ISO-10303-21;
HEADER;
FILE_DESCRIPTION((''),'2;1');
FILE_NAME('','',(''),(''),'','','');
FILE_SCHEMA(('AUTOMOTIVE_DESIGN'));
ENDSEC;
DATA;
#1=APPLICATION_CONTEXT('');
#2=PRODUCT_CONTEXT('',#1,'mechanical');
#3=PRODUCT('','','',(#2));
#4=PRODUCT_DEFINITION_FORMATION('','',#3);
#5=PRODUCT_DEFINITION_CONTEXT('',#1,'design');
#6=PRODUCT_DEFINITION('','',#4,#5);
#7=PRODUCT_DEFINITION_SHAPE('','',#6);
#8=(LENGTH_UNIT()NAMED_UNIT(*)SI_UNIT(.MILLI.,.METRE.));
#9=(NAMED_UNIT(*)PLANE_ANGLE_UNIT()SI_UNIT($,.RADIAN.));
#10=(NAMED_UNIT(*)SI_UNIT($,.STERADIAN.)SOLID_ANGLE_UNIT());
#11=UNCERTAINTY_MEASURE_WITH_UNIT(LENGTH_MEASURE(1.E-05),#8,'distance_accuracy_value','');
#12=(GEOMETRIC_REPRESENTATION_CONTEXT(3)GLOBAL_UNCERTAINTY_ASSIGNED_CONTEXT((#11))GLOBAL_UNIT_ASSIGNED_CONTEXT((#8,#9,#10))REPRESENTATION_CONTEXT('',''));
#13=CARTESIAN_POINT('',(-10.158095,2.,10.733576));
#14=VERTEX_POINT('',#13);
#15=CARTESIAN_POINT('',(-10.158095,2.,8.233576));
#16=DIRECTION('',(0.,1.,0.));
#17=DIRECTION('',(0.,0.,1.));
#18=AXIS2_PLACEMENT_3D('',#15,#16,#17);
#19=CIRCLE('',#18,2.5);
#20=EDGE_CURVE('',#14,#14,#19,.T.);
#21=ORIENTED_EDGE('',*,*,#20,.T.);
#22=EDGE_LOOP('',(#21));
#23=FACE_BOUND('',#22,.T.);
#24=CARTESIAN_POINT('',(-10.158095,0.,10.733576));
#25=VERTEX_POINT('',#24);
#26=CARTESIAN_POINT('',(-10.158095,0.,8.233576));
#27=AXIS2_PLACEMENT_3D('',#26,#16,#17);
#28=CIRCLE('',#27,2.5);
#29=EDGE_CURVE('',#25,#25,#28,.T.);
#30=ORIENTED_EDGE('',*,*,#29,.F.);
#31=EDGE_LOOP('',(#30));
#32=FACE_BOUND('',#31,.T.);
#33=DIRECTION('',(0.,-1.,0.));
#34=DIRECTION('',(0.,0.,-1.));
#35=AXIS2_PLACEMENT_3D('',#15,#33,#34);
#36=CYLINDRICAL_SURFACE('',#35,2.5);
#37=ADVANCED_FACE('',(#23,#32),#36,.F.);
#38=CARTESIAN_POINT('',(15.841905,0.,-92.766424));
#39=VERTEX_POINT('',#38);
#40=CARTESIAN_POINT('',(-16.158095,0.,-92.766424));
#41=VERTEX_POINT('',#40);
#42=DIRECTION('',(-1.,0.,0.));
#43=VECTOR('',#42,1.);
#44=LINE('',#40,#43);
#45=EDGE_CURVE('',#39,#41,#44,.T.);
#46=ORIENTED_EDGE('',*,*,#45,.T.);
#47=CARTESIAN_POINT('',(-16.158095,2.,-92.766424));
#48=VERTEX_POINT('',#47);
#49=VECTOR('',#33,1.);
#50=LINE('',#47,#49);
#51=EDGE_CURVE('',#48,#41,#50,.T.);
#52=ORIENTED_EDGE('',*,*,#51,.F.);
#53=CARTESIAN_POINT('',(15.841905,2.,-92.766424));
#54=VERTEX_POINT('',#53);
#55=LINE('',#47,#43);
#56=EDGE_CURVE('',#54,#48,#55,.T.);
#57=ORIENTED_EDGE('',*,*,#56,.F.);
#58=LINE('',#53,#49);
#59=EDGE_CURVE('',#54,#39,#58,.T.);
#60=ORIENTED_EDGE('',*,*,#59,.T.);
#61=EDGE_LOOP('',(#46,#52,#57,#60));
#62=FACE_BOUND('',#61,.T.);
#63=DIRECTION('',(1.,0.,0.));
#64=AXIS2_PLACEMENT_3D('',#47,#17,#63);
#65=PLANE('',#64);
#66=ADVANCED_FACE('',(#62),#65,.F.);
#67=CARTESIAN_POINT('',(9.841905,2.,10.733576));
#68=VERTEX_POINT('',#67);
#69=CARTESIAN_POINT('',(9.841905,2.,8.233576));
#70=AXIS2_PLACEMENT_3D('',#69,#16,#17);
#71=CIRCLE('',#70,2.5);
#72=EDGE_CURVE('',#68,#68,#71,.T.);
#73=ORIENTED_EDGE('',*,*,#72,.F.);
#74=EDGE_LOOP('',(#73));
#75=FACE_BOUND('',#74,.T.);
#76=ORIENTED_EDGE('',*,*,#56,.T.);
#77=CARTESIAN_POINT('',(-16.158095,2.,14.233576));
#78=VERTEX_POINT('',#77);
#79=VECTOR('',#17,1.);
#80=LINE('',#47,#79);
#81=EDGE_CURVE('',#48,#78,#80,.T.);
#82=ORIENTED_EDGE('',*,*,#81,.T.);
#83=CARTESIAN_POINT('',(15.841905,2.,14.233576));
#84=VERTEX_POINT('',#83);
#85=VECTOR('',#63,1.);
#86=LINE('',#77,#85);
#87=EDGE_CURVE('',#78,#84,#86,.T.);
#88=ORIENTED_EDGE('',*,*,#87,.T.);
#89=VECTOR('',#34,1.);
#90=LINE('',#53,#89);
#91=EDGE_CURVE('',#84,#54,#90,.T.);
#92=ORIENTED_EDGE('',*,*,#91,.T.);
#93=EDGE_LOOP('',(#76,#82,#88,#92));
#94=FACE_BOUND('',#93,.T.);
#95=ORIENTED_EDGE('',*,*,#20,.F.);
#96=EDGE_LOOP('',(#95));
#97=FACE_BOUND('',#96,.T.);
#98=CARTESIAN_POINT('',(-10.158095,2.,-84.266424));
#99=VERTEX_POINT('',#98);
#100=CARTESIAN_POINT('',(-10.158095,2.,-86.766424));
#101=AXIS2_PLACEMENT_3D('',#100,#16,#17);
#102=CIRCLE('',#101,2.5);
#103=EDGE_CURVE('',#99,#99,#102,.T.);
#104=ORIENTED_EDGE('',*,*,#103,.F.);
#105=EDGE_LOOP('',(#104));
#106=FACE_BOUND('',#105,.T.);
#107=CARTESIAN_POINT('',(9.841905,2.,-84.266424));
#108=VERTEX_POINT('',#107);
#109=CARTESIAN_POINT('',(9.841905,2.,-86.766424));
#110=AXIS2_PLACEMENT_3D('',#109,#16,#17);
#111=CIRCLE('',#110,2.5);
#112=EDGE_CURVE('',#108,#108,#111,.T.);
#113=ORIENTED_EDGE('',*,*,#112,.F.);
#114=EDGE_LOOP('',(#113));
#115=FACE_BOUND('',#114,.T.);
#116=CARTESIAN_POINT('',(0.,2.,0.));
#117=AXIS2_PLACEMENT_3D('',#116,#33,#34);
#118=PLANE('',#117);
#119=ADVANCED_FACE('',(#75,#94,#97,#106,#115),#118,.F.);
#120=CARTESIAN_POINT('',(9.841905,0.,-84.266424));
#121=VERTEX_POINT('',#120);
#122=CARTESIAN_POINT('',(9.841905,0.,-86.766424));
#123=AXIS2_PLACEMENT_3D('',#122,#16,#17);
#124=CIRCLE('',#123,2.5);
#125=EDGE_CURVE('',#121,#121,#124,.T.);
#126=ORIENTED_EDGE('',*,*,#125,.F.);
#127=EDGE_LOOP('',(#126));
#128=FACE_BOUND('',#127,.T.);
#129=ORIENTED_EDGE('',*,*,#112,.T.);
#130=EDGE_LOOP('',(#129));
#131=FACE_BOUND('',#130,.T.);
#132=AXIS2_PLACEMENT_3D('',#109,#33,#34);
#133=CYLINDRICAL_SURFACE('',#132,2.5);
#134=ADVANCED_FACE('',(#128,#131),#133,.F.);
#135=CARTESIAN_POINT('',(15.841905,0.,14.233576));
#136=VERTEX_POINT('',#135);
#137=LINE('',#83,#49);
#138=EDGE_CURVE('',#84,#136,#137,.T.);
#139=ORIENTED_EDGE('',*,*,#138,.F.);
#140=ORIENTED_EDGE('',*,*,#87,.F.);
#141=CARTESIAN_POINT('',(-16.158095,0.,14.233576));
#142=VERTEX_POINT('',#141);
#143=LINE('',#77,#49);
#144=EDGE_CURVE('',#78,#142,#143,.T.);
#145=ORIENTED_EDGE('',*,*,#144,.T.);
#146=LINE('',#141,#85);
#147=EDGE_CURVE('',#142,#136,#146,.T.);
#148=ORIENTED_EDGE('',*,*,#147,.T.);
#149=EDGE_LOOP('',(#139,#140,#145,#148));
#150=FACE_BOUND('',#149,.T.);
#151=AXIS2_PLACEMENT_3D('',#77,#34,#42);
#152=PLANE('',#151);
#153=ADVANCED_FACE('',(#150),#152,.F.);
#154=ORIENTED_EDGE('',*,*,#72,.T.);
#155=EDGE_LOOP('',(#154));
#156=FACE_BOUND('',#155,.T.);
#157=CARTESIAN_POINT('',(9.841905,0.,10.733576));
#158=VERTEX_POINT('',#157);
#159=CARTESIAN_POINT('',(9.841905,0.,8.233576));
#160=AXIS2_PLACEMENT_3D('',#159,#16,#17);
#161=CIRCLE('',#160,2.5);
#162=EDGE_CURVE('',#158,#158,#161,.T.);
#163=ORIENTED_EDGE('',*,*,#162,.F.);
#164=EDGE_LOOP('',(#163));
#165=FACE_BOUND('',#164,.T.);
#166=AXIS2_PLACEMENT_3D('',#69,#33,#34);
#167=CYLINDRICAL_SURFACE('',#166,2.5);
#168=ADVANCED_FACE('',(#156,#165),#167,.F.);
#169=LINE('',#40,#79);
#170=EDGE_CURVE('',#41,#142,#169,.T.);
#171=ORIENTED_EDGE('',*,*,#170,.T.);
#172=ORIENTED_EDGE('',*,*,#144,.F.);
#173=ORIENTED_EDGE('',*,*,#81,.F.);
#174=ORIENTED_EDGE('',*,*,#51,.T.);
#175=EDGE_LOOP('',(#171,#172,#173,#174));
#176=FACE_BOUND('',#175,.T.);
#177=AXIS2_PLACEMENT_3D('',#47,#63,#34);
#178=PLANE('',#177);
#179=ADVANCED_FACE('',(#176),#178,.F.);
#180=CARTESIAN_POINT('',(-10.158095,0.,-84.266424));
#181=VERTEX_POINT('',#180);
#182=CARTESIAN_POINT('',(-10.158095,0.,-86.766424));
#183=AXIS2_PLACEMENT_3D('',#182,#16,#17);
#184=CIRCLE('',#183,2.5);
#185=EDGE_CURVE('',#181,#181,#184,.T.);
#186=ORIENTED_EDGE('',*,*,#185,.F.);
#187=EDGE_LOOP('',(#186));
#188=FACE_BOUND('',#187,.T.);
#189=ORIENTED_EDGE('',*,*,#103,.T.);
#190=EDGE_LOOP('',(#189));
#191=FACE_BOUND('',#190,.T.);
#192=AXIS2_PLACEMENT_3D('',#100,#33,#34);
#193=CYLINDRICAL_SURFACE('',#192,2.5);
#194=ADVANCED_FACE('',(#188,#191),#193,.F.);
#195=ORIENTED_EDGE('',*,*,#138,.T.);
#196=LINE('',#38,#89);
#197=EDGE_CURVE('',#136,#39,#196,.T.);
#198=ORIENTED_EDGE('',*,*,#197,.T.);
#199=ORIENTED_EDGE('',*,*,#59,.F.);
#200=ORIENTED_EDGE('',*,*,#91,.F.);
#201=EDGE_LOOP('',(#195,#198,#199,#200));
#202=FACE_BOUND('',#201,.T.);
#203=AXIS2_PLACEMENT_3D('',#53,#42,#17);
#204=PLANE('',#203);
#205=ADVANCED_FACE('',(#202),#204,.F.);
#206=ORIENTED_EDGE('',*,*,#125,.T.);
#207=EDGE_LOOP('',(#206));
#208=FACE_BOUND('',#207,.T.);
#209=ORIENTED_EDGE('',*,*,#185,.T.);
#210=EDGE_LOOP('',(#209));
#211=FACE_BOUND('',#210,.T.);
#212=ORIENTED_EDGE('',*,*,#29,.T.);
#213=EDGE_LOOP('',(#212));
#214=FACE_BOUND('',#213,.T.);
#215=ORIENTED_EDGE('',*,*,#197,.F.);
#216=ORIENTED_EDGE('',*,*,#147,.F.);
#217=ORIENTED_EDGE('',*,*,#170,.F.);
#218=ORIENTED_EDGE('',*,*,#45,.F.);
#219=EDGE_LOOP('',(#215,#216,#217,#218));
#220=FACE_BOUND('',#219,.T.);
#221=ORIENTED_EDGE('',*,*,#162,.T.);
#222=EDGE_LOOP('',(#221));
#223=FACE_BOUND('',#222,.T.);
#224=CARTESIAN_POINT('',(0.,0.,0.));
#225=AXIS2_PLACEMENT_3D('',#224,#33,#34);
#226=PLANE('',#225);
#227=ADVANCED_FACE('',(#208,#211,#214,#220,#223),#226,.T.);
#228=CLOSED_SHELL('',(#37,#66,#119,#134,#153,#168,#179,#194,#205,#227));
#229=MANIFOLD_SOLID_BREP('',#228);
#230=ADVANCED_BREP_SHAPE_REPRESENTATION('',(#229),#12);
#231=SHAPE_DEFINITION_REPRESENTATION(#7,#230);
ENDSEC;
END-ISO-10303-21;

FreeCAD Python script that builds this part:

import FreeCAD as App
import Part
import Sketcher
Q = App.Units.Quantity

doc = App.newDocument("Part")
body = doc.addObject("PartDesign::Body", "Body")

# Sketch on XZ plane
sketch1 = body.newObject("Sketcher::SketchObject", "Sketch")
sketch1.AttachmentSupport = (doc.getObject("XZ_Plane"), [""])
sketch1.MapMode = "FlatFace"
sketch1.addGeometry([
    Part.LineSegment(App.Vector(-16.158095, -92.766424, 0), App.Vector(-16.158095, 14.233576, 0)),  # 0
    Part.LineSegment(App.Vector(-16.158095, 14.233576, 0), App.Vector(15.841905, 14.233576, 0)),  # 1
    Part.LineSegment(App.Vector(15.841905, 14.233576, 0), App.Vector(15.841905, -92.766424, 0)),  # 2
    Part.LineSegment(App.Vector(15.841905, -92.766424, 0), App.Vector(-16.158095, -92.766424, 0)),  # 3
    Part.Circle(App.Vector(-10.158095, 8.233576, 0), App.Vector(0, 0, 1), 2.5),  # 4
    Part.Circle(App.Vector(9.841905, 8.233576, 0), App.Vector(0, 0, 1), 2.5),  # 5
    Part.Circle(App.Vector(-10.158095, -86.766424, 0), App.Vector(0, 0, 1), 2.5),  # 6
    Part.Circle(App.Vector(9.841905, -86.766424, 0), App.Vector(0, 0, 1), 2.5),  # 7
], False)
sketch1.addConstraint([
    Sketcher.Constraint("Coincident", 0, 2, 1, 1),
    Sketcher.Constraint("Coincident", 1, 2, 2, 1),
    Sketcher.Constraint("Coincident", 2, 2, 3, 1),
    Sketcher.Constraint("Coincident", 3, 2, 0, 1),
    Sketcher.Constraint("Vertical", 0),
    Sketcher.Constraint("Horizontal", 1),
    Sketcher.Constraint("Vertical", 2),
    Sketcher.Constraint("Horizontal", 3),
    Sketcher.Constraint("Equal", 4, 5),
    Sketcher.Constraint("Equal", 5, 6),
    Sketcher.Constraint("Equal", 6, 7),
    Sketcher.Constraint("Horizontal", 4, 3, 5, 3),
    Sketcher.Constraint("Horizontal", 6, 3, 7, 3),
    Sketcher.Constraint("Vertical", 4, 3, 6, 3),
    Sketcher.Constraint("Vertical", 5, 3, 7, 3),
    Sketcher.Constraint("Diameter", 4, Q("5 mm")),
    Sketcher.Constraint("DistanceX", 1, 1, 1, 2, Q("32 mm")),
    Sketcher.Constraint("DistanceY", 0, 1, 0, 2, Q("107 mm")),
    Sketcher.Constraint("DistanceX", 4, 3, 5, 3, Q("20 mm")),
    Sketcher.Constraint("DistanceY", 6, 3, 4, 3, Q("95 mm")),
    Sketcher.Constraint("DistanceX", 0, 2, 4, 3, Q("6 mm")),
    Sketcher.Constraint("DistanceY", 4, 3, 0, 2, Q("6 mm")),
    Sketcher.Constraint("DistanceX", 4, 3, -1, 1, Q("10.158095 mm")),
    Sketcher.Constraint("DistanceY", -1, 1, 4, 3, Q("8.233576 mm")),
])
pad1 = body.newObject("PartDesign::Pad", "Pad")
pad1.Profile = sketch1
pad1.Length = 2
pad1.Reversed = True

doc.recompute()
